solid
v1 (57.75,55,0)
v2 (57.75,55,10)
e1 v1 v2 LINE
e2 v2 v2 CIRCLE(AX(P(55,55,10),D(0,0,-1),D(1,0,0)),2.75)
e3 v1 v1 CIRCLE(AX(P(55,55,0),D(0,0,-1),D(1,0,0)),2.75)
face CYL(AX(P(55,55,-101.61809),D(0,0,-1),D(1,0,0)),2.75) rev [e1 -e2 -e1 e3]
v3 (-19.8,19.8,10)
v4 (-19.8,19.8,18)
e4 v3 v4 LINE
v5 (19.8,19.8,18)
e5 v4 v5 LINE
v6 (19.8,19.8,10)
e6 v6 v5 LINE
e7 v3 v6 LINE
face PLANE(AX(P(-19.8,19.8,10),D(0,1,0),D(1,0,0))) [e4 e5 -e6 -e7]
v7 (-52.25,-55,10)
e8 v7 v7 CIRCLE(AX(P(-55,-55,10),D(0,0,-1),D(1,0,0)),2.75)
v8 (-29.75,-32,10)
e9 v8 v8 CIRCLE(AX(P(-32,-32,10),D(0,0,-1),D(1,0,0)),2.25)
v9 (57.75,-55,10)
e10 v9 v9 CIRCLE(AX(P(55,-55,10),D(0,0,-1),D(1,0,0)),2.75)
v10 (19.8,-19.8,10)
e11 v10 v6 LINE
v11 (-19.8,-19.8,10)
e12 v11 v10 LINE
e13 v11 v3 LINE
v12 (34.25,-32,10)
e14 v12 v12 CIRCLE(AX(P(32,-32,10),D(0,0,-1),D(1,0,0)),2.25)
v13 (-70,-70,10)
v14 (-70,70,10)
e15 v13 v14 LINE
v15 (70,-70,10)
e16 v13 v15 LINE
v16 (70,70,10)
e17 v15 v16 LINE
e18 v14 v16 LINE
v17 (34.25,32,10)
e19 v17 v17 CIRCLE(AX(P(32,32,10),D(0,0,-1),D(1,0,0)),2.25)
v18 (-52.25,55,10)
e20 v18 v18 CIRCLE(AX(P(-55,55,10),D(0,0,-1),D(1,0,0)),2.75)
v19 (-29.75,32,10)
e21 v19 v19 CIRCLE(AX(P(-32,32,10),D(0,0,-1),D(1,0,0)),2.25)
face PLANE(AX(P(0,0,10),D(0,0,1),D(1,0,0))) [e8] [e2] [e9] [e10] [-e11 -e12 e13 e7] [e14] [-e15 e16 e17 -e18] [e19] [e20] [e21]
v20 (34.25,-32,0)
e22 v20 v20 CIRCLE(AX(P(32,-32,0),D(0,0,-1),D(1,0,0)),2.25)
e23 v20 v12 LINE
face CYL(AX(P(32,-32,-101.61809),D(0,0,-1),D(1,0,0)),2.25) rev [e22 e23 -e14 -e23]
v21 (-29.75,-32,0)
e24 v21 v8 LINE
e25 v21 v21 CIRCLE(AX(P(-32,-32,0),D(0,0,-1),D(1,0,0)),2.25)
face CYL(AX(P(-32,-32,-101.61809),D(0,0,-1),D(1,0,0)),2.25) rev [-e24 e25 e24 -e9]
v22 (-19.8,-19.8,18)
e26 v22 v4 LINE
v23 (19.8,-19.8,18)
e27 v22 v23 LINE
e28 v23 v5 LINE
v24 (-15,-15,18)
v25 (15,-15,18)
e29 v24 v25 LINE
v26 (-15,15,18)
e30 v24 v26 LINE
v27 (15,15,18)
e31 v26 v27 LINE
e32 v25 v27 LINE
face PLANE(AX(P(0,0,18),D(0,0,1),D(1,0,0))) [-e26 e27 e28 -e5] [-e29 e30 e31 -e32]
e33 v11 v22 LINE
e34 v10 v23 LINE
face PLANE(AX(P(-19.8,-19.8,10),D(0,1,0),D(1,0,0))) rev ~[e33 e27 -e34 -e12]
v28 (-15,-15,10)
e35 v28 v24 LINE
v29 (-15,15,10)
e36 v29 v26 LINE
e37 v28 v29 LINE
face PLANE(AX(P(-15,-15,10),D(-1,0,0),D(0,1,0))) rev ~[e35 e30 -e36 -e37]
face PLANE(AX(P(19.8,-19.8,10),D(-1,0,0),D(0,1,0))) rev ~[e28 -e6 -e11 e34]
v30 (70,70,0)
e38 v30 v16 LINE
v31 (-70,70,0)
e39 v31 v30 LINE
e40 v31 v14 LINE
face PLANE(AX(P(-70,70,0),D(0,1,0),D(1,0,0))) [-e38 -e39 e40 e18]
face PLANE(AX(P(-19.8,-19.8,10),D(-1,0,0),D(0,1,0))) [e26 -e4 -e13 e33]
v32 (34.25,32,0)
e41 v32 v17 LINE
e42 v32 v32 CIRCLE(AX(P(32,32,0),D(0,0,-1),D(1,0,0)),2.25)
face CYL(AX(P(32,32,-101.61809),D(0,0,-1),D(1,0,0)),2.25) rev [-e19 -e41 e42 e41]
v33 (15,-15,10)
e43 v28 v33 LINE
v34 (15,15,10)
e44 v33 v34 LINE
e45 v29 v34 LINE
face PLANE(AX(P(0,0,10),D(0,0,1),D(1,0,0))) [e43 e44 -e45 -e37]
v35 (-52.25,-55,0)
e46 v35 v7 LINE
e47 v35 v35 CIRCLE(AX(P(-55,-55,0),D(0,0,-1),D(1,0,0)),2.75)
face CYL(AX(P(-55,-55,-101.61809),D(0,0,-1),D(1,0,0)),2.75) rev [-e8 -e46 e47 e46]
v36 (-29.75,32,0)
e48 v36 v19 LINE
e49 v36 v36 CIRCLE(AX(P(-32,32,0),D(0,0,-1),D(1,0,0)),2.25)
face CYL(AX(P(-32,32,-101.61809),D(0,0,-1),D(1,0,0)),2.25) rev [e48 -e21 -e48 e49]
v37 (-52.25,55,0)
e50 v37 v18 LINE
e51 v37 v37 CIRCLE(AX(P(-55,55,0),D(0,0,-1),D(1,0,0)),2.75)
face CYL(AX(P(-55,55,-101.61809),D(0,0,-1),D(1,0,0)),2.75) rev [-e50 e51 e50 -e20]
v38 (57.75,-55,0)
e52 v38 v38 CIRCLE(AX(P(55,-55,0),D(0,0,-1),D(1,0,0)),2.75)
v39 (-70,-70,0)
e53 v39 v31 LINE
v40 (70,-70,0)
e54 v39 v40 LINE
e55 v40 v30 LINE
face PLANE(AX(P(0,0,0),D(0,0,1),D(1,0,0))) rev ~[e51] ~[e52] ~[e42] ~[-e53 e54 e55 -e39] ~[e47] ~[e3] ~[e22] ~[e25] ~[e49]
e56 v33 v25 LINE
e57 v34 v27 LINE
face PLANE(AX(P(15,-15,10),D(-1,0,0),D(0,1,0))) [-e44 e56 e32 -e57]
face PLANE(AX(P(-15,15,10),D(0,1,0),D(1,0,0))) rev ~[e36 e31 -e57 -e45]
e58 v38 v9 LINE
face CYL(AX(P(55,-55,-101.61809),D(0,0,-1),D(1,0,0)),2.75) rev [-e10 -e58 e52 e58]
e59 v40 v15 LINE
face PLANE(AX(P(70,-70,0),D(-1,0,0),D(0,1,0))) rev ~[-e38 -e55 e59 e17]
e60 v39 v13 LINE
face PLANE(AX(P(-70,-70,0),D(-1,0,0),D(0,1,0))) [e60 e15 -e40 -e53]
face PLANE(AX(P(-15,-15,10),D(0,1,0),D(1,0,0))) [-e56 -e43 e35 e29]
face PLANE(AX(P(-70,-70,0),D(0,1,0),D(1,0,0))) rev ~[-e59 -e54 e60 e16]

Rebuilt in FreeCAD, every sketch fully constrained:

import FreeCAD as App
import Part
import Sketcher


def add_polygon(sketch, points):
    """Adds a closed chain of lines whose ends are joined by coincident constraints."""
    first, n = sketch.GeometryCount, len(points)
    for a, b in zip(points, points[1:] + points[:1]):
        sketch.addGeometry(Part.LineSegment(App.Vector(*a, 0), App.Vector(*b, 0)), False)
    for i in range(n):
        sketch.addConstraint(Sketcher.Constraint("Coincident", first + i, 2, first + (i + 1) % n, 1))

doc = App.newDocument("Part")
body = doc.addObject("PartDesign::Body", "Body")

sketch1 = body.newObject("Sketcher::SketchObject", "Sketch")
sketch1.AttachmentSupport = (doc.getObject("XY_Plane"), [""])
sketch1.MapMode = "FlatFace"
add_polygon(sketch1, [(-70, 70), (-70, -70), (70, -70), (70, 70)])
sketch1.addConstraint([
    Sketcher.Constraint("Vertical", 0),
    Sketcher.Constraint("Horizontal", 1),
    Sketcher.Constraint("Vertical", 2),
    Sketcher.Constraint("Horizontal", 3),
    Sketcher.Constraint("Symmetric", 0, 2, 2, 2, -1, 1),
    Sketcher.Constraint("Equal", 3, 0),
    Sketcher.Constraint("DistanceX", 1, 1, 1, 2, 140.0),
])
pad1 = body.newObject("PartDesign::Pad", "Pad")
pad1.Profile = sketch1
pad1.Length = 10

sketch2 = body.newObject("Sketcher::SketchObject", "Sketch001")
sketch2.AttachmentSupport = (doc.getObject("XY_Plane"), [""])
sketch2.MapMode = "FlatFace"
sketch2.AttachmentOffset = App.Placement(App.Vector(0, 0, 10), App.Rotation())
add_polygon(sketch2, [(-19.8, 19.8), (-19.8, -19.8), (19.8, -19.8), (19.8, 19.8)])
add_polygon(sketch2, [(15, -15), (-15, -15), (-15, 15), (15, 15)])
sketch2.addConstraint([
    Sketcher.Constraint("Vertical", 0),
    Sketcher.Constraint("Horizontal", 1),
    Sketcher.Constraint("Vertical", 2),
    Sketcher.Constraint("Horizontal", 3),
    Sketcher.Constraint("Horizontal", 4),
    Sketcher.Constraint("Vertical", 5),
    Sketcher.Constraint("Horizontal", 6),
    Sketcher.Constraint("Vertical", 7),
    Sketcher.Constraint("Symmetric", 0, 2, 2, 2, -1, 1),
    Sketcher.Constraint("Symmetric", 4, 2, 6, 2, -1, 1),
    Sketcher.Constraint("Equal", 3, 0),
    Sketcher.Constraint("Equal", 6, 5),
    Sketcher.Constraint("DistanceX", 4, 2, 4, 1, 30.0),
    Sketcher.Constraint("DistanceX", 1, 1, 1, 2, 39.6),
])
pad2 = body.newObject("PartDesign::Pad", "Pad001")
pad2.Profile = sketch2
pad2.Length = 8

sketch3 = body.newObject("Sketcher::SketchObject", "Sketch002")
sketch3.AttachmentSupport = (doc.getObject("XY_Plane"), [""])
sketch3.MapMode = "FlatFace"
sketch3.addGeometry([
    Part.Circle(App.Vector(-55, -55, 0), App.Vector(0, 0, 1), 2.75),
    Part.Circle(App.Vector(-55, 55, 0), App.Vector(0, 0, 1), 2.75),
    Part.Circle(App.Vector(55, -55, 0), App.Vector(0, 0, 1), 2.75),
    Part.Circle(App.Vector(55, 55, 0), App.Vector(0, 0, 1), 2.75),
    Part.Circle(App.Vector(-32, -32, 0), App.Vector(0, 0, 1), 2.25),
    Part.Circle(App.Vector(-32, 32, 0), App.Vector(0, 0, 1), 2.25),
    Part.Circle(App.Vector(32, -32, 0), App.Vector(0, 0, 1), 2.25),
    Part.Circle(App.Vector(32, 32, 0), App.Vector(0, 0, 1), 2.25),
], False)
sketch3.addConstraint([
    Sketcher.Constraint("Equal", 0, 1),
    Sketcher.Constraint("Equal", 1, 2),
    Sketcher.Constraint("Equal", 2, 3),
    Sketcher.Constraint("Equal", 4, 5),
    Sketcher.Constraint("Equal", 5, 6),
    Sketcher.Constraint("Equal", 6, 7),
    Sketcher.Constraint("Symmetric", 1, 3, 2, 3, -1, 1),
    Sketcher.Constraint("Symmetric", 0, 3, 3, 3, -1, 1),
    Sketcher.Constraint("Symmetric", 5, 3, 6, 3, -1, 1),
    Sketcher.Constraint("Symmetric", 4, 3, 7, 3, -1, 1),
    Sketcher.Constraint("Symmetric", 0, 3, 2, 3, -2),
    Sketcher.Constraint("Symmetric", 4, 3, 6, 3, -2),
    Sketcher.Constraint("Diameter", 0, 5.5),
    Sketcher.Constraint("Diameter", 4, 4.5),
    Sketcher.Constraint("DistanceX", 0, 3, -1, 1, 55.0),
    Sketcher.Constraint("DistanceY", 0, 3, -1, 1, 55.0),
    Sketcher.Constraint("DistanceX", 4, 3, -1, 1, 32.0),
    Sketcher.Constraint("DistanceY", 4, 3, -1, 1, 32.0),
])
pocket1 = body.newObject("PartDesign::Pocket", "Pocket")
pocket1.Profile = sketch3
pocket1.Type = "ThroughAll"
pocket1.Midplane = True

doc.recompute()
